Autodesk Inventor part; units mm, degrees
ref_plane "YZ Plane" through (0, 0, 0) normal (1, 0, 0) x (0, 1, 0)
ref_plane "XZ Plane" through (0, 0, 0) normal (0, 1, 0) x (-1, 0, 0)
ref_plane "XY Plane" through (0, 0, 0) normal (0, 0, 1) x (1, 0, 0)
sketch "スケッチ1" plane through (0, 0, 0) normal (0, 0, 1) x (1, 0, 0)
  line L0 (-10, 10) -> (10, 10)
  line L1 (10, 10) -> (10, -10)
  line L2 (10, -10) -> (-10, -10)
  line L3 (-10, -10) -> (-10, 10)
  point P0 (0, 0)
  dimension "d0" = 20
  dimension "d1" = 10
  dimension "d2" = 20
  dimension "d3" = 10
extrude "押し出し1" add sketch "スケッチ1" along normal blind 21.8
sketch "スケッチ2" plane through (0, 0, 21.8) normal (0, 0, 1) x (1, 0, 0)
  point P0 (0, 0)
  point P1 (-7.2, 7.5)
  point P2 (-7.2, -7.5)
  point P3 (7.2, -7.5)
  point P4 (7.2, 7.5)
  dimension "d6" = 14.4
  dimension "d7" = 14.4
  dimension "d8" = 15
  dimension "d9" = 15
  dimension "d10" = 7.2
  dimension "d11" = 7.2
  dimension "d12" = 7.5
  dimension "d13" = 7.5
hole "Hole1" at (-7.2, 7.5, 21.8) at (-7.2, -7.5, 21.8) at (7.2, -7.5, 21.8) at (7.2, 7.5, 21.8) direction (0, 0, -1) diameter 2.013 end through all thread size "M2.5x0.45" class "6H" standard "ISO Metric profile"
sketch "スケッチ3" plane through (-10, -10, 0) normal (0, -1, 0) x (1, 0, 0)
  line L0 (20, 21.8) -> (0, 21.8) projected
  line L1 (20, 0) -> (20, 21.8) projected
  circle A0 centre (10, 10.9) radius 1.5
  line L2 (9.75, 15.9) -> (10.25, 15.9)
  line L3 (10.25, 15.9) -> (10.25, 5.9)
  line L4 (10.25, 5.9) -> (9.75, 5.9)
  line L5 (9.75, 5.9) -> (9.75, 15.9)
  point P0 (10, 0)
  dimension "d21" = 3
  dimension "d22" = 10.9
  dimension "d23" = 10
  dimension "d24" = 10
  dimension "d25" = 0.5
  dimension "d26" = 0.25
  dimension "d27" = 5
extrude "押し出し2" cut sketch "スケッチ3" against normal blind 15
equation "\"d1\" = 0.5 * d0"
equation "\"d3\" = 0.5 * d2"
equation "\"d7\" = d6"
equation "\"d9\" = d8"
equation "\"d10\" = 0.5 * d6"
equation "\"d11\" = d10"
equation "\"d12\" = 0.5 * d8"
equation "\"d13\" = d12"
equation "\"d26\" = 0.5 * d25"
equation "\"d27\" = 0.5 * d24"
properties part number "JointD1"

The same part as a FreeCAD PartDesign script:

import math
import FreeCAD as App
import Part
import Sketcher
Q = App.Units.Quantity


def add_polygon(sketch, points):
    """Adds a closed chain of lines whose ends are joined by coincident constraints."""
    first, n = sketch.GeometryCount, len(points)
    for a, b in zip(points, points[1:] + points[:1]):
        sketch.addGeometry(Part.LineSegment(App.Vector(*a, 0), App.Vector(*b, 0)), False)
    for i in range(n):
        sketch.addConstraint(Sketcher.Constraint("Coincident", first + i, 2, first + (i + 1) % n, 1))

doc = App.newDocument("Part")
body = doc.addObject("PartDesign::Body", "Body")

sketch1 = body.newObject("Sketcher::SketchObject", "Sketch")
sketch1.AttachmentSupport = (doc.getObject("XY_Plane"), [""])
sketch1.MapMode = "FlatFace"
add_polygon(sketch1, [(10, 10), (-10, 10), (-10, -10), (10, -10)])
sketch1.addConstraint([
    Sketcher.Constraint("Horizontal", 0),
    Sketcher.Constraint("Vertical", 1),
    Sketcher.Constraint("Horizontal", 2),
    Sketcher.Constraint("Vertical", 3),
    Sketcher.Constraint("Symmetric", 0, 2, 2, 2, -1, 1),
    Sketcher.Constraint("Equal", 2, 1),
    Sketcher.Constraint("DistanceX", 0, 2, 0, 1, Q("20 mm")),
])
pad1 = body.newObject("PartDesign::Pad", "Pad")
pad1.Profile = sketch1
pad1.Length = 21.8

sketch2 = body.newObject("Sketcher::SketchObject", "Sketch001")
sketch2.AttachmentSupport = (doc.getObject("XY_Plane"), [""])
sketch2.MapMode = "FlatFace"
sketch2.AttachmentOffset = App.Placement(App.Vector(0, 0, 21.8), App.Rotation())
sketch2.addGeometry([
    Part.Circle(App.Vector(-7.2, 7.5, 0), App.Vector(0, 0, 1), 1),
    Part.Circle(App.Vector(-7.2, -7.5, 0), App.Vector(0, 0, 1), 1),
    Part.Circle(App.Vector(7.2, -7.5, 0), App.Vector(0, 0, 1), 1),
    Part.Circle(App.Vector(7.2, 7.5, 0), App.Vector(0, 0, 1), 1),
], False)
sketch2.addConstraint([
    Sketcher.Constraint("Equal", 0, 1),
    Sketcher.Constraint("Equal", 1, 2),
    Sketcher.Constraint("Equal", 2, 3),
    Sketcher.Constraint("Symmetric", 0, 3, 2, 3, -1, 1),
    Sketcher.Constraint("Symmetric", 1, 3, 3, 3, -1, 1),
    Sketcher.Constraint("Symmetric", 1, 3, 2, 3, -2),
    Sketcher.Constraint("Diameter", 0, Q("2.013 mm")),
    Sketcher.Constraint("DistanceY", 1, 3, 0, 3, Q("15 mm")),
    Sketcher.Constraint("DistanceX", 0, 3, -1, 1, Q("7.2 mm")),
])
doc.recompute()
hole = body.newObject("PartDesign::Hole", "Hole")
hole.Profile = sketch2
hole.ThreadType = "None"
hole.Diameter = 2.013
hole.DepthType = "ThroughAll"

sketch3 = body.newObject("Sketcher::SketchObject", "Sketch002")
sketch3.AttachmentSupport = (doc.getObject("XZ_Plane"), [""])
sketch3.MapMode = "FlatFace"
sketch3.AttachmentOffset = App.Placement(App.Vector(0, 0, 10), App.Rotation())
sketch3.addGeometry([
    Part.ArcOfCircle(Part.Circle(App.Vector(0, 10.9, 0), App.Vector(0, 0, 1), 1.5), math.radians(-80), math.radians(80)),
    Part.LineSegment(App.Vector(0.2, 12.4, 0), App.Vector(0.2, 15.9, 0)),
    Part.LineSegment(App.Vector(0.2, 15.9, 0), App.Vector(-0.2, 15.9, 0)),
    Part.LineSegment(App.Vector(-0.2, 15.9, 0), App.Vector(-0.2, 12.4, 0)),
    Part.ArcOfCircle(Part.Circle(App.Vector(0, 10.9, 0), App.Vector(0, 0, 1), 1.5), math.radians(100), math.radians(260)),
    Part.LineSegment(App.Vector(-0.2, 9.4, 0), App.Vector(-0.2, 5.9, 0)),
    Part.LineSegment(App.Vector(-0.2, 5.9, 0), App.Vector(0.2, 5.9, 0)),
    Part.LineSegment(App.Vector(0.2, 5.9, 0), App.Vector(0.2, 9.4, 0)),
], False)
sketch3.addConstraint([
    Sketcher.Constraint("Coincident", 0, 2, 1, 1),
    Sketcher.Constraint("Coincident", 1, 2, 2, 1),
    Sketcher.Constraint("Coincident", 2, 2, 3, 1),
    Sketcher.Constraint("Coincident", 3, 2, 4, 1),
    Sketcher.Constraint("Coincident", 4, 2, 5, 1),
    Sketcher.Constraint("Coincident", 5, 2, 6, 1),
    Sketcher.Constraint("Coincident", 6, 2, 7, 1),
    Sketcher.Constraint("Coincident", 7, 2, 0, 1),
    Sketcher.Constraint("Vertical", 1),
    Sketcher.Constraint("Horizontal", 2),
    Sketcher.Constraint("Vertical", 3),
    Sketcher.Constraint("Vertical", 5),
    Sketcher.Constraint("Horizontal", 6),
    Sketcher.Constraint("Vertical", 7),
    Sketcher.Constraint("Coincident", 4, 3, 0, 3),
    Sketcher.Constraint("Equal", 0, 4),
    Sketcher.Constraint("Symmetric", 0, 2, 3, 2, -2),
    Sketcher.Constraint("Horizontal", 4, 2, 7, 2),
    Sketcher.Constraint("Vertical", 3, 2, 4, 2),
    Sketcher.Constraint("Equal", 3, 5),
    Sketcher.Constraint("Radius", 0, Q("1.5 mm")),
    Sketcher.Constraint("DistanceX", 2, 2, 2, 1, Q("0.5 mm")),
    Sketcher.Constraint("DistanceY", 0, 3, 1, 2, Q("5 mm")),
    Sketcher.Constraint("DistanceY", -1, 1, 0, 3, Q("10.9 mm")),
])
pocket1 = body.newObject("PartDesign::Pocket", "Pocket")
pocket1.Profile = sketch3
pocket1.Length = 15

doc.recompute()
